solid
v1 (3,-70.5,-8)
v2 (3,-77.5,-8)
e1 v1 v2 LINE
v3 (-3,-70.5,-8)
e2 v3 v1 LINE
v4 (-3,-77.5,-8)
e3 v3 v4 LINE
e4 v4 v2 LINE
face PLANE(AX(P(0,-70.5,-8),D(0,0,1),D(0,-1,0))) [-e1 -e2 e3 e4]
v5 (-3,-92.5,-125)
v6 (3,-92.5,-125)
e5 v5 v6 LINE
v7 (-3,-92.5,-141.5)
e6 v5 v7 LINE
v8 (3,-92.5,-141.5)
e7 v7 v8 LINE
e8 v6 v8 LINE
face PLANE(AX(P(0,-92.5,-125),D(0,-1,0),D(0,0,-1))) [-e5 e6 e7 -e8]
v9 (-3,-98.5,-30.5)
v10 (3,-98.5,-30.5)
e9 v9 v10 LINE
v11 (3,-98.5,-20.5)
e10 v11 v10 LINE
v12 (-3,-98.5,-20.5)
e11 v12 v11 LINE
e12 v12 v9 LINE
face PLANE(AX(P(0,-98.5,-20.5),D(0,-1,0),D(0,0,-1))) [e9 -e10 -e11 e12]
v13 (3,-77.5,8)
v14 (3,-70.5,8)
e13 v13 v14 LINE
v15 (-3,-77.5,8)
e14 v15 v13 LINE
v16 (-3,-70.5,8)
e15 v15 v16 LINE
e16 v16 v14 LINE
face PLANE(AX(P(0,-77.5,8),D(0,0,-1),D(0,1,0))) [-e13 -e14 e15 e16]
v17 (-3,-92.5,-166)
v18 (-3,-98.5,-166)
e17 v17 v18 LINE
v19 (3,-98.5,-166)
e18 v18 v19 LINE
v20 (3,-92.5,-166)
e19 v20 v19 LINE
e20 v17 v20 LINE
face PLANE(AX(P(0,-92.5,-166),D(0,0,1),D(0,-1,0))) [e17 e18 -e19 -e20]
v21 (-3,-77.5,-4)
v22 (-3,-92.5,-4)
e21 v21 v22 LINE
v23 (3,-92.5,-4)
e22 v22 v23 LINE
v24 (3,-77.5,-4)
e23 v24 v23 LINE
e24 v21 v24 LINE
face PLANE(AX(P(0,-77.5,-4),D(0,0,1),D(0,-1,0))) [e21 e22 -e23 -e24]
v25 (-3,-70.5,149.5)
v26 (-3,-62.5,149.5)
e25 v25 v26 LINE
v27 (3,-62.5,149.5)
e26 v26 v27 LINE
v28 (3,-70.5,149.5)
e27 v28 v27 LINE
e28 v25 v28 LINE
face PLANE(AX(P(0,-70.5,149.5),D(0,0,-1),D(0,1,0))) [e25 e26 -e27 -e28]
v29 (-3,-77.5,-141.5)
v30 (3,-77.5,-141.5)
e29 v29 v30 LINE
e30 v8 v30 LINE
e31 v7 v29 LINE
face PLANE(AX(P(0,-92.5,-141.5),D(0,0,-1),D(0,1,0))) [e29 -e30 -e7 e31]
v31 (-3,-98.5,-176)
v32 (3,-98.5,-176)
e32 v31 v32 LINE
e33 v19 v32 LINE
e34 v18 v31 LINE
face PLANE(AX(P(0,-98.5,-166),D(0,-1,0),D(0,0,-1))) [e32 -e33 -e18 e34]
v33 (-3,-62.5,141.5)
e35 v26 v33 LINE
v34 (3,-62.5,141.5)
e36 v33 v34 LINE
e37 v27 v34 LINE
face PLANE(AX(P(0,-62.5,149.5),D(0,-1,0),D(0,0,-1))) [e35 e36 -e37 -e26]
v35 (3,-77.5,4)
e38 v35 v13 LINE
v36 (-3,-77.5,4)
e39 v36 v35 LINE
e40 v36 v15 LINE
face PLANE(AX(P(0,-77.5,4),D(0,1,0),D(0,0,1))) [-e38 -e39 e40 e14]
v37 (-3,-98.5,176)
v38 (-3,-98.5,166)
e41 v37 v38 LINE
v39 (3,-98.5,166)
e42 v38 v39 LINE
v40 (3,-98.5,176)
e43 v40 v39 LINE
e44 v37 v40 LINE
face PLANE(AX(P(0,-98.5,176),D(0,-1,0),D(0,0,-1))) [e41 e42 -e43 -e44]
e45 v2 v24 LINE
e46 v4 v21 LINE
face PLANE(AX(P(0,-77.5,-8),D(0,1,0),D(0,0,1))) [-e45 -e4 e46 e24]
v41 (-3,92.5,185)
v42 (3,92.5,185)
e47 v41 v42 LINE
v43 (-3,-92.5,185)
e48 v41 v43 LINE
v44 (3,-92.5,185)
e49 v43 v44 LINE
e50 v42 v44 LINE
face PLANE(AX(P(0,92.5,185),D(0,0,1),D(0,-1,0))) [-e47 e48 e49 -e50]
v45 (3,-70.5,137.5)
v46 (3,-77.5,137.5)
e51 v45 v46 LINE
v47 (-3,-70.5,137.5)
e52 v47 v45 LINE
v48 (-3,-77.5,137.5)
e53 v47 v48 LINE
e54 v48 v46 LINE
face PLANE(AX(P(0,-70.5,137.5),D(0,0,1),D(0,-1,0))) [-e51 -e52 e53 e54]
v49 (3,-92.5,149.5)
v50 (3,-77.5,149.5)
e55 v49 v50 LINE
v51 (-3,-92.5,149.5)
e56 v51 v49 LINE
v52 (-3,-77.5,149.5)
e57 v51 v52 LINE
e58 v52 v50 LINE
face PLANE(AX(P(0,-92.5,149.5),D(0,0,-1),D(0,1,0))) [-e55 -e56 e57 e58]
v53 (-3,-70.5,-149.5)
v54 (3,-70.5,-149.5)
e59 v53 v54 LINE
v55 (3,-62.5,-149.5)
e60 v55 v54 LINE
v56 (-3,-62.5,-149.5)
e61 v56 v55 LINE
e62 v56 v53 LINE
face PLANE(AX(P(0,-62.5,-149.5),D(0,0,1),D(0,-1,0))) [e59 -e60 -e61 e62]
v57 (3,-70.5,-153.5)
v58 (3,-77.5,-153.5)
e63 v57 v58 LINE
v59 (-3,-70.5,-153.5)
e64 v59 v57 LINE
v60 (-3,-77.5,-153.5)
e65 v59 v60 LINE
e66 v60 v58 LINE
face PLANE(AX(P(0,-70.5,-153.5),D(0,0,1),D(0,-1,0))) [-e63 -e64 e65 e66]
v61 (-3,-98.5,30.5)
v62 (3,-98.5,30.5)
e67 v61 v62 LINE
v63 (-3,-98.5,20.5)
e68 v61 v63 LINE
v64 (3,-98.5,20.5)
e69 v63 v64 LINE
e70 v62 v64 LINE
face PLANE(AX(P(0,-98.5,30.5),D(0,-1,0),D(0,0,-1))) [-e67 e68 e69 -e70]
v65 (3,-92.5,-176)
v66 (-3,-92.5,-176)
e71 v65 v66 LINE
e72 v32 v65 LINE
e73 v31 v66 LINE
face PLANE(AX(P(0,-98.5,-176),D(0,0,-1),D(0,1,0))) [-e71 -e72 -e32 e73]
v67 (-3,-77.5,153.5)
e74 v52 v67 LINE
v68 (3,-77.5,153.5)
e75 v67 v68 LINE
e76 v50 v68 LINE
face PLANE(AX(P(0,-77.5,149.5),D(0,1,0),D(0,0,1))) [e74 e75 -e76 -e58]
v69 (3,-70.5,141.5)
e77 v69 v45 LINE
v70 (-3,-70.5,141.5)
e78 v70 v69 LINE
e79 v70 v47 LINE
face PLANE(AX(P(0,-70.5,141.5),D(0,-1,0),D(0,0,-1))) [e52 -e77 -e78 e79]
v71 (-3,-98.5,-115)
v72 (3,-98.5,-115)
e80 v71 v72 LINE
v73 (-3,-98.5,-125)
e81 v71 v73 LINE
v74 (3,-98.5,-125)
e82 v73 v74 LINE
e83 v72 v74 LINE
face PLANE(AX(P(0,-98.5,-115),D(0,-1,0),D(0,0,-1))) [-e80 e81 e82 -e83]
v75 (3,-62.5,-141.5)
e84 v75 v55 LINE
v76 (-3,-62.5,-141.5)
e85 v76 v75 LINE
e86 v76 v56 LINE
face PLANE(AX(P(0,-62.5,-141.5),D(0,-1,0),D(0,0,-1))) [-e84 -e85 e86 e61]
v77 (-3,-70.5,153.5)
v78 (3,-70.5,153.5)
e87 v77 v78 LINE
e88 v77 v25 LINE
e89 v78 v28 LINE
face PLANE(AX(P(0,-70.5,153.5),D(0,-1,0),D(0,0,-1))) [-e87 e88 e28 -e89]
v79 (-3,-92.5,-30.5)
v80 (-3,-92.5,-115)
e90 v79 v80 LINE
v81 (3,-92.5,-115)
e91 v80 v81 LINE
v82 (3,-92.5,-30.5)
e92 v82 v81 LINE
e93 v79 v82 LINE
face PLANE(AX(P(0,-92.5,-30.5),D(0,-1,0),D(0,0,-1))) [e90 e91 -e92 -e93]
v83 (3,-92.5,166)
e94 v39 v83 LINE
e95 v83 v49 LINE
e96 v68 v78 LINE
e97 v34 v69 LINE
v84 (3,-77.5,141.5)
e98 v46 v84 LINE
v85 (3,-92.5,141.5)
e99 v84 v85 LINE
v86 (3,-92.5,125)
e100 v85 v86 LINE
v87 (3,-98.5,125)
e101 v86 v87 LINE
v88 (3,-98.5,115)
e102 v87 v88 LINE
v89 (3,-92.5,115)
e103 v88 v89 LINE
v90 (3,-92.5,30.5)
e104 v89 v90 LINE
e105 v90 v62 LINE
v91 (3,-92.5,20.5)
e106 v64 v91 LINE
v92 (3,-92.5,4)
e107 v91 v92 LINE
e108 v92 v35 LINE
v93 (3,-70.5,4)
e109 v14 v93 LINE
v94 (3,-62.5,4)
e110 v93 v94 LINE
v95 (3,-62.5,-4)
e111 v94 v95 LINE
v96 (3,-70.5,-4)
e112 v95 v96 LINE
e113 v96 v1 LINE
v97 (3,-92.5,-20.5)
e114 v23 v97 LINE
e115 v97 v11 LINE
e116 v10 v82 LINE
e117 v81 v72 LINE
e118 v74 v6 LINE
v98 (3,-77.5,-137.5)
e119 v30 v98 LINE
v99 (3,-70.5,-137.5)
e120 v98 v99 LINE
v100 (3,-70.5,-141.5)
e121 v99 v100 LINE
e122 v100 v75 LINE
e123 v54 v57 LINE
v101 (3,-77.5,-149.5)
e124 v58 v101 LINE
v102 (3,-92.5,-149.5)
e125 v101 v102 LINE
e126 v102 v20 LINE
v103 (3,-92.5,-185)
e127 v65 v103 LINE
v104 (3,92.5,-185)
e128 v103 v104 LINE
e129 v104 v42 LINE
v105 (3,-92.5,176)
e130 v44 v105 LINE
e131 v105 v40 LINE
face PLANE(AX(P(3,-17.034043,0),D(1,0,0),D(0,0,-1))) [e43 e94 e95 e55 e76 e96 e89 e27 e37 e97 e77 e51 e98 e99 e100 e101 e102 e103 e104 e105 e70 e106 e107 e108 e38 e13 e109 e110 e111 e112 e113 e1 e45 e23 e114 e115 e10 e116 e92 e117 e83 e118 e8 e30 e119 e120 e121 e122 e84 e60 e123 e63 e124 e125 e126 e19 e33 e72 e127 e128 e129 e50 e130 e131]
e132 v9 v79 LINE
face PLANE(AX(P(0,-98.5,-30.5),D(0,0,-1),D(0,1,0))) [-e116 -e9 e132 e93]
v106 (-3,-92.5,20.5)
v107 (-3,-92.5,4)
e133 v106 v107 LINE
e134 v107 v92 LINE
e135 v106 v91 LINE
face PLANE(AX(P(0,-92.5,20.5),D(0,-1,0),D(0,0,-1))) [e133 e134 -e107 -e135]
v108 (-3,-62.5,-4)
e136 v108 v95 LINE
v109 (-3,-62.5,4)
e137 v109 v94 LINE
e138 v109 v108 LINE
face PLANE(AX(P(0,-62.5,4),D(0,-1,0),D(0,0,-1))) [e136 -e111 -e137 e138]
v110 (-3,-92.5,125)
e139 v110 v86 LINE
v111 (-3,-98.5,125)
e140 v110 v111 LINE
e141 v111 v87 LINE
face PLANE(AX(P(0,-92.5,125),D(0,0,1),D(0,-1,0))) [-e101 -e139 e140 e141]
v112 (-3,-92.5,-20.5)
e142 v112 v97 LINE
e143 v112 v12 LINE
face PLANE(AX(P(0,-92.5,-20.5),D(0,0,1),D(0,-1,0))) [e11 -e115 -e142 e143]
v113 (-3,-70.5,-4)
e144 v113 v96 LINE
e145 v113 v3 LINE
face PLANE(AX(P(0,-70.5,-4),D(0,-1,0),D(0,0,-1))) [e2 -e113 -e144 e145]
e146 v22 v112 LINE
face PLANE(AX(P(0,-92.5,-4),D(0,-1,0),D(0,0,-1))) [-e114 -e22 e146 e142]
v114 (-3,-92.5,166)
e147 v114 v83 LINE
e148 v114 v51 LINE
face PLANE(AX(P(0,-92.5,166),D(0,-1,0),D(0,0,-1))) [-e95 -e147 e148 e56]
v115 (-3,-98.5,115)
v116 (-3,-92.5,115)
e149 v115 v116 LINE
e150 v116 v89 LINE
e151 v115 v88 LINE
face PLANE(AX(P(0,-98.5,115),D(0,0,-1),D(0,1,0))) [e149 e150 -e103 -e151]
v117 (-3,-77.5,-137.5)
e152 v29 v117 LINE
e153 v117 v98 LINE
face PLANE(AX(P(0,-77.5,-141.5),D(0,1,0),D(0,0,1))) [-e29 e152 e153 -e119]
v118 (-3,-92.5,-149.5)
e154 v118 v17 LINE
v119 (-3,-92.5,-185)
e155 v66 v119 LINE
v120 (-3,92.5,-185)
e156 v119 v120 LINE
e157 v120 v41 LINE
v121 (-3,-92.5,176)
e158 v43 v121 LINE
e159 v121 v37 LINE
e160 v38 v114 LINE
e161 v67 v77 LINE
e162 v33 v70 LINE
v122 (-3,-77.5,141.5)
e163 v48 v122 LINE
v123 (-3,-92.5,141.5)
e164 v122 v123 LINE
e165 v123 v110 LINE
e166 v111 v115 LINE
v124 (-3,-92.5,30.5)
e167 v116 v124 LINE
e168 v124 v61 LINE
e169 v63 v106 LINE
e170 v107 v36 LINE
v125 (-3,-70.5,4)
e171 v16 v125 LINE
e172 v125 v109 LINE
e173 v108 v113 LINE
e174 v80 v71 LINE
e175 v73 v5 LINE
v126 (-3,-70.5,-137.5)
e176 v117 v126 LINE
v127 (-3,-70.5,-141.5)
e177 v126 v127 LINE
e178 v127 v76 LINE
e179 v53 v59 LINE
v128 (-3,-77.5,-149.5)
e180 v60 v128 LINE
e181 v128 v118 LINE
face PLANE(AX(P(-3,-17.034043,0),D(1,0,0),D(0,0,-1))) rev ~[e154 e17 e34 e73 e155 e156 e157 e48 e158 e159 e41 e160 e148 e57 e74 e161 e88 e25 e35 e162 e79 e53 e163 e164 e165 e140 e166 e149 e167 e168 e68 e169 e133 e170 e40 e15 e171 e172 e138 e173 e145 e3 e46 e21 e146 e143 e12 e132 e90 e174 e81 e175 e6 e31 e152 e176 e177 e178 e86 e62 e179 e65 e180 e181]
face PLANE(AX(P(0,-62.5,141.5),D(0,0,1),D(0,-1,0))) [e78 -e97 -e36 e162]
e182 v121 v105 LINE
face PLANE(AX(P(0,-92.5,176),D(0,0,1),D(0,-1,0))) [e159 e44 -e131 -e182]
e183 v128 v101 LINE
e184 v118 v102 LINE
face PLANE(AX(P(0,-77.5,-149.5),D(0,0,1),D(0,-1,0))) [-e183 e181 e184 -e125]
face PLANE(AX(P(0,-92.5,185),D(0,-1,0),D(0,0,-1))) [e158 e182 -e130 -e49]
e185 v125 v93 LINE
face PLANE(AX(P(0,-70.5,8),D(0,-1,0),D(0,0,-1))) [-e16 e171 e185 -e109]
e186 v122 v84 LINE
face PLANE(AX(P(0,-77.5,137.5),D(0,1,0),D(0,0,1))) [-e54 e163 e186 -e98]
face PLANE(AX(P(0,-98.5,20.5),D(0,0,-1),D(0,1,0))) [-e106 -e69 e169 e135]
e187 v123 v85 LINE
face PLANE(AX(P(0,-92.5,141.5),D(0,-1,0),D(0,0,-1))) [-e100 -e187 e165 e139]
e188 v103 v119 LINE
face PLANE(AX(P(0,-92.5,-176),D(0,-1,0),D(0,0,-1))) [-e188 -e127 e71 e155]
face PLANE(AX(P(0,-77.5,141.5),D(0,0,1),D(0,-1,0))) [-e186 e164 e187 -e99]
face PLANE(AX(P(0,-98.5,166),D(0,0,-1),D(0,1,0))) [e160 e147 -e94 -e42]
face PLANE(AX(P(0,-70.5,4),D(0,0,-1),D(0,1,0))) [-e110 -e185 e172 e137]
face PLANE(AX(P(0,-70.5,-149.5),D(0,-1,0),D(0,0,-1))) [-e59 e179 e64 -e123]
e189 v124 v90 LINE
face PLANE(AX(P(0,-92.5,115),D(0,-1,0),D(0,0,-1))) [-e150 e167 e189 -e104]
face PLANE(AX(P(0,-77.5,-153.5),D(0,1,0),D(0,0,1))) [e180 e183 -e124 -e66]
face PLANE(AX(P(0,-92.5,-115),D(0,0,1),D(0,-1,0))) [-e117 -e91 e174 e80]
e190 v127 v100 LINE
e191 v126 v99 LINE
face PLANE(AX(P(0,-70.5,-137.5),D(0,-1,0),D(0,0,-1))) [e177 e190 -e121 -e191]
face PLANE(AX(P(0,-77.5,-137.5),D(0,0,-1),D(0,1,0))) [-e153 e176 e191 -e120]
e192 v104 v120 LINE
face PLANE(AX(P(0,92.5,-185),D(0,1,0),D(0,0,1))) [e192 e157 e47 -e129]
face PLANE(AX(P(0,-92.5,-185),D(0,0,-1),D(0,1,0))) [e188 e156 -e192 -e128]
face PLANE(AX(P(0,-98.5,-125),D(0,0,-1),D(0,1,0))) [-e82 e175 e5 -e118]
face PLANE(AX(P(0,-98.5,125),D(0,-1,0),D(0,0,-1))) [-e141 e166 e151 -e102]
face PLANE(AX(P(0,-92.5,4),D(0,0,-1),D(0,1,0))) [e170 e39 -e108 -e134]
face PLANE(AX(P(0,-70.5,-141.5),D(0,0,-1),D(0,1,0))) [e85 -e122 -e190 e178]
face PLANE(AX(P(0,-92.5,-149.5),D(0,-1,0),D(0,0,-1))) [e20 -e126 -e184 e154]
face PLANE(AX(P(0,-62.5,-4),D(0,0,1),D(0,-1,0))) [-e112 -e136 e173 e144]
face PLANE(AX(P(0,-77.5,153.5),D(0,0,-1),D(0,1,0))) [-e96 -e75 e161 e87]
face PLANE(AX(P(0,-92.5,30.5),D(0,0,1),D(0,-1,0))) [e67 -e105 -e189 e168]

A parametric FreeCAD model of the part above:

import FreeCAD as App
import Part
import Sketcher
Q = App.Units.Quantity


def add_polygon(sketch, points):
    """Adds a closed chain of lines whose ends are joined by coincident constraints."""
    first, n = sketch.GeometryCount, len(points)
    for a, b in zip(points, points[1:] + points[:1]):
        sketch.addGeometry(Part.LineSegment(App.Vector(*a, 0), App.Vector(*b, 0)), False)
    for i in range(n):
        sketch.addConstraint(Sketcher.Constraint("Coincident", first + i, 2, first + (i + 1) % n, 1))

doc = App.newDocument("Part")
body = doc.addObject("PartDesign::Body", "Body")

# Sketch on YZ plane
sketch1 = body.newObject("Sketcher::SketchObject", "Sketch")
sketch1.AttachmentSupport = (doc.getObject("YZ_Plane"), [""])
sketch1.MapMode = "FlatFace"
add_polygon(sketch1, [(92.5, -185), (92.5, 185), (-92.5, 185), (-92.5, 176), (-98.5, 176), (-98.5, 166), (-92.5, 166), (-92.5, 149.5), (-77.5, 149.5), (-77.5, 153.5), (-70.5, 153.5), (-70.5, 149.5), (-62.5, 149.5), (-62.5, 141.5), (-70.5, 141.5), (-70.5, 137.5), (-77.5, 137.5), (-77.5, 141.5), (-92.5, 141.5), (-92.5, 125), (-98.5, 125), (-98.5, 115), (-92.5, 115), (-92.5, 30.5), (-98.5, 30.5), (-98.5, 20.5), (-92.5, 20.5), (-92.5, 4), (-77.5, 4), (-77.5, 8), (-70.5, 8), (-70.5, 4), (-62.5, 4), (-62.5, -4), (-70.5, -4), (-70.5, -8), (-77.5, -8), (-77.5, -4), (-92.5, -4), (-92.5, -20.5), (-98.5, -20.5), (-98.5, -30.5), (-92.5, -30.5), (-92.5, -115), (-98.5, -115), (-98.5, -125), (-92.5, -125), (-92.5, -141.5), (-77.5, -141.5), (-77.5, -137.5), (-70.5, -137.5), (-70.5, -141.5), (-62.5, -141.5), (-62.5, -149.5), (-70.5, -149.5), (-70.5, -153.5), (-77.5, -153.5), (-77.5, -149.5), (-92.5, -149.5), (-92.5, -166), (-98.5, -166), (-98.5, -176), (-92.5, -176), (-92.5, -185)])  # lines 0-63
sketch1.addConstraint([
    Sketcher.Constraint("Vertical", 0),
    Sketcher.Constraint("Horizontal", 1),
    Sketcher.Constraint("Vertical", 2),
    Sketcher.Constraint("Horizontal", 3),
    Sketcher.Constraint("Vertical", 4),
    Sketcher.Constraint("Horizontal", 5),
    Sketcher.Constraint("Vertical", 6),
    Sketcher.Constraint("Horizontal", 7),
    Sketcher.Constraint("Vertical", 8),
    Sketcher.Constraint("Horizontal", 9),
    Sketcher.Constraint("Vertical", 10),
    Sketcher.Constraint("Horizontal", 11),
    Sketcher.Constraint("Vertical", 12),
    Sketcher.Constraint("Horizontal", 13),
    Sketcher.Constraint("Vertical", 14),
    Sketcher.Constraint("Horizontal", 15),
    Sketcher.Constraint("Vertical", 16),
    Sketcher.Constraint("Horizontal", 17),
    Sketcher.Constraint("Vertical", 18),
    Sketcher.Constraint("Horizontal", 19),
    Sketcher.Constraint("Vertical", 20),
    Sketcher.Constraint("Horizontal", 21),
    Sketcher.Constraint("Vertical", 22),
    Sketcher.Constraint("Horizontal", 23),
    Sketcher.Constraint("Vertical", 24),
    Sketcher.Constraint("Horizontal", 25),
    Sketcher.Constraint("Vertical", 26),
    Sketcher.Constraint("Horizontal", 27),
    Sketcher.Constraint("Vertical", 28),
    Sketcher.Constraint("Horizontal", 29),
    Sketcher.Constraint("Vertical", 30),
    Sketcher.Constraint("Horizontal", 31),
    Sketcher.Constraint("Vertical", 32),
    Sketcher.Constraint("Horizontal", 33),
    Sketcher.Constraint("Vertical", 34),
    Sketcher.Constraint("Horizontal", 35),
    Sketcher.Constraint("Vertical", 36),
    Sketcher.Constraint("Horizontal", 37),
    Sketcher.Constraint("Vertical", 38),
    Sketcher.Constraint("Horizontal", 39),
    Sketcher.Constraint("Vertical", 40),
    Sketcher.Constraint("Horizontal", 41),
    Sketcher.Constraint("Vertical", 42),
    Sketcher.Constraint("Horizontal", 43),
    Sketcher.Constraint("Vertical", 44),
    Sketcher.Constraint("Horizontal", 45),
    Sketcher.Constraint("Vertical", 46),
    Sketcher.Constraint("Horizontal", 47),
    Sketcher.Constraint("Vertical", 48),
    Sketcher.Constraint("Horizontal", 49),
    Sketcher.Constraint("Vertical", 50),
    Sketcher.Constraint("Horizontal", 51),
    Sketcher.Constraint("Vertical", 52),
    Sketcher.Constraint("Horizontal", 53),
    Sketcher.Constraint("Vertical", 54),
    Sketcher.Constraint("Horizontal", 55),
    Sketcher.Constraint("Vertical", 56),
    Sketcher.Constraint("Horizontal", 57),
    Sketcher.Constraint("Vertical", 58),
    Sketcher.Constraint("Horizontal", 59),
    Sketcher.Constraint("Vertical", 60),
    Sketcher.Constraint("Horizontal", 61),
    Sketcher.Constraint("Vertical", 62),
    Sketcher.Constraint("Horizontal", 63),
    Sketcher.Constraint("Symmetric", 0, 2, 62, 2, -1, 1),
    Sketcher.Constraint("Symmetric", 30, 2, 33, 2, -1),
    Sketcher.Constraint("Symmetric", 28, 2, 35, 2, -1),
    Sketcher.Constraint("Symmetric", 26, 2, 37, 2, -1),
    Sketcher.Constraint("Symmetric", 24, 2, 39, 2, -1),
    Sketcher.Constraint("Symmetric", 22, 2, 41, 2, -1),
    Sketcher.Constraint("Symmetric", 20, 2, 43, 2, -1),
    Sketcher.Constraint("Symmetric", 18, 2, 45, 2, -1),
    Sketcher.Constraint("Symmetric", 16, 2, 47, 2, -1),
    Sketcher.Constraint("Symmetric", 14, 2, 49, 2, -1),
    Sketcher.Constraint("Symmetric", 12, 2, 51, 2, -1),
    Sketcher.Constraint("Symmetric", 10, 2, 53, 2, -1),
    Sketcher.Constraint("Symmetric", 8, 2, 55, 2, -1),
    Sketcher.Constraint("Symmetric", 6, 2, 57, 2, -1),
    Sketcher.Constraint("Symmetric", 4, 2, 59, 2, -1),
    Sketcher.Constraint("Symmetric", 2, 2, 61, 2, -1),
    Sketcher.Constraint("Horizontal", 7, 2, 10, 2),
    Sketcher.Constraint("Horizontal", 13, 2, 16, 2),
    Sketcher.Constraint("Horizontal", 27, 2, 30, 2),
    Sketcher.Constraint("Vertical", 2, 2, 5, 2),
    Sketcher.Constraint("Vertical", 10, 2, 13, 2),
    Sketcher.Constraint("Vertical", 8, 2, 15, 2),
    Sketcher.Constraint("Vertical", 6, 2, 17, 2),
    Sketcher.Constraint("Vertical", 4, 2, 19, 2),
    Sketcher.Constraint("Vertical", 18, 2, 21, 2),
    Sketcher.Constraint("Vertical", 20, 2, 23, 2),
    Sketcher.Constraint("Vertical", 22, 2, 25, 2),
    Sketcher.Constraint("Vertical", 16, 2, 27, 2),
    Sketcher.Constraint("Vertical", 14, 2, 29, 2),
    Sketcher.Constraint("Vertical", 12, 2, 31, 2),
    Sketcher.Constraint("Equal", 53, 12),
    Sketcher.Constraint("Equal", 10, 14),
    Sketcher.Constraint("Equal", 6, 18),
    Sketcher.Constraint("Equal", 4, 20),
    Sketcher.Constraint("Equal", 20, 24),
    Sketcher.Constraint("Equal", 18, 26),
    Sketcher.Constraint("Equal", 16, 28),
    Sketcher.Constraint("Equal", 12, 32),
    Sketcher.Constraint("DistanceX", 1, 2, 1, 1, Q("185 mm")),
    Sketcher.Constraint("DistanceX", 3, 2, 3, 1, Q("6 mm")),
    Sketcher.Constraint("DistanceX", 7, 1, 7, 2, Q("15 mm")),
    Sketcher.Constraint("DistanceX", 9, 1, 9, 2, Q("7 mm")),
    Sketcher.Constraint("DistanceX", 11, 1, 11, 2, Q("8 mm")),
    Sketcher.Constraint("DistanceY", 0, 1, 0, 2, Q("370 mm")),
    Sketcher.Constraint("DistanceY", 2, 2, 2, 1, Q("9 mm")),
    Sketcher.Constraint("DistanceY", 4, 2, 4, 1, Q("10 mm")),
    Sketcher.Constraint("DistanceY", 8, 1, 8, 2, Q("4 mm")),
    Sketcher.Constraint("DistanceY", 6, 2, 6, 1, Q("16.5 mm")),
])
pad1 = body.newObject("PartDesign::Pad", "Pad")
pad1.Profile = sketch1
pad1.Length = 6
pad1.Midplane = True

doc.recompute()
